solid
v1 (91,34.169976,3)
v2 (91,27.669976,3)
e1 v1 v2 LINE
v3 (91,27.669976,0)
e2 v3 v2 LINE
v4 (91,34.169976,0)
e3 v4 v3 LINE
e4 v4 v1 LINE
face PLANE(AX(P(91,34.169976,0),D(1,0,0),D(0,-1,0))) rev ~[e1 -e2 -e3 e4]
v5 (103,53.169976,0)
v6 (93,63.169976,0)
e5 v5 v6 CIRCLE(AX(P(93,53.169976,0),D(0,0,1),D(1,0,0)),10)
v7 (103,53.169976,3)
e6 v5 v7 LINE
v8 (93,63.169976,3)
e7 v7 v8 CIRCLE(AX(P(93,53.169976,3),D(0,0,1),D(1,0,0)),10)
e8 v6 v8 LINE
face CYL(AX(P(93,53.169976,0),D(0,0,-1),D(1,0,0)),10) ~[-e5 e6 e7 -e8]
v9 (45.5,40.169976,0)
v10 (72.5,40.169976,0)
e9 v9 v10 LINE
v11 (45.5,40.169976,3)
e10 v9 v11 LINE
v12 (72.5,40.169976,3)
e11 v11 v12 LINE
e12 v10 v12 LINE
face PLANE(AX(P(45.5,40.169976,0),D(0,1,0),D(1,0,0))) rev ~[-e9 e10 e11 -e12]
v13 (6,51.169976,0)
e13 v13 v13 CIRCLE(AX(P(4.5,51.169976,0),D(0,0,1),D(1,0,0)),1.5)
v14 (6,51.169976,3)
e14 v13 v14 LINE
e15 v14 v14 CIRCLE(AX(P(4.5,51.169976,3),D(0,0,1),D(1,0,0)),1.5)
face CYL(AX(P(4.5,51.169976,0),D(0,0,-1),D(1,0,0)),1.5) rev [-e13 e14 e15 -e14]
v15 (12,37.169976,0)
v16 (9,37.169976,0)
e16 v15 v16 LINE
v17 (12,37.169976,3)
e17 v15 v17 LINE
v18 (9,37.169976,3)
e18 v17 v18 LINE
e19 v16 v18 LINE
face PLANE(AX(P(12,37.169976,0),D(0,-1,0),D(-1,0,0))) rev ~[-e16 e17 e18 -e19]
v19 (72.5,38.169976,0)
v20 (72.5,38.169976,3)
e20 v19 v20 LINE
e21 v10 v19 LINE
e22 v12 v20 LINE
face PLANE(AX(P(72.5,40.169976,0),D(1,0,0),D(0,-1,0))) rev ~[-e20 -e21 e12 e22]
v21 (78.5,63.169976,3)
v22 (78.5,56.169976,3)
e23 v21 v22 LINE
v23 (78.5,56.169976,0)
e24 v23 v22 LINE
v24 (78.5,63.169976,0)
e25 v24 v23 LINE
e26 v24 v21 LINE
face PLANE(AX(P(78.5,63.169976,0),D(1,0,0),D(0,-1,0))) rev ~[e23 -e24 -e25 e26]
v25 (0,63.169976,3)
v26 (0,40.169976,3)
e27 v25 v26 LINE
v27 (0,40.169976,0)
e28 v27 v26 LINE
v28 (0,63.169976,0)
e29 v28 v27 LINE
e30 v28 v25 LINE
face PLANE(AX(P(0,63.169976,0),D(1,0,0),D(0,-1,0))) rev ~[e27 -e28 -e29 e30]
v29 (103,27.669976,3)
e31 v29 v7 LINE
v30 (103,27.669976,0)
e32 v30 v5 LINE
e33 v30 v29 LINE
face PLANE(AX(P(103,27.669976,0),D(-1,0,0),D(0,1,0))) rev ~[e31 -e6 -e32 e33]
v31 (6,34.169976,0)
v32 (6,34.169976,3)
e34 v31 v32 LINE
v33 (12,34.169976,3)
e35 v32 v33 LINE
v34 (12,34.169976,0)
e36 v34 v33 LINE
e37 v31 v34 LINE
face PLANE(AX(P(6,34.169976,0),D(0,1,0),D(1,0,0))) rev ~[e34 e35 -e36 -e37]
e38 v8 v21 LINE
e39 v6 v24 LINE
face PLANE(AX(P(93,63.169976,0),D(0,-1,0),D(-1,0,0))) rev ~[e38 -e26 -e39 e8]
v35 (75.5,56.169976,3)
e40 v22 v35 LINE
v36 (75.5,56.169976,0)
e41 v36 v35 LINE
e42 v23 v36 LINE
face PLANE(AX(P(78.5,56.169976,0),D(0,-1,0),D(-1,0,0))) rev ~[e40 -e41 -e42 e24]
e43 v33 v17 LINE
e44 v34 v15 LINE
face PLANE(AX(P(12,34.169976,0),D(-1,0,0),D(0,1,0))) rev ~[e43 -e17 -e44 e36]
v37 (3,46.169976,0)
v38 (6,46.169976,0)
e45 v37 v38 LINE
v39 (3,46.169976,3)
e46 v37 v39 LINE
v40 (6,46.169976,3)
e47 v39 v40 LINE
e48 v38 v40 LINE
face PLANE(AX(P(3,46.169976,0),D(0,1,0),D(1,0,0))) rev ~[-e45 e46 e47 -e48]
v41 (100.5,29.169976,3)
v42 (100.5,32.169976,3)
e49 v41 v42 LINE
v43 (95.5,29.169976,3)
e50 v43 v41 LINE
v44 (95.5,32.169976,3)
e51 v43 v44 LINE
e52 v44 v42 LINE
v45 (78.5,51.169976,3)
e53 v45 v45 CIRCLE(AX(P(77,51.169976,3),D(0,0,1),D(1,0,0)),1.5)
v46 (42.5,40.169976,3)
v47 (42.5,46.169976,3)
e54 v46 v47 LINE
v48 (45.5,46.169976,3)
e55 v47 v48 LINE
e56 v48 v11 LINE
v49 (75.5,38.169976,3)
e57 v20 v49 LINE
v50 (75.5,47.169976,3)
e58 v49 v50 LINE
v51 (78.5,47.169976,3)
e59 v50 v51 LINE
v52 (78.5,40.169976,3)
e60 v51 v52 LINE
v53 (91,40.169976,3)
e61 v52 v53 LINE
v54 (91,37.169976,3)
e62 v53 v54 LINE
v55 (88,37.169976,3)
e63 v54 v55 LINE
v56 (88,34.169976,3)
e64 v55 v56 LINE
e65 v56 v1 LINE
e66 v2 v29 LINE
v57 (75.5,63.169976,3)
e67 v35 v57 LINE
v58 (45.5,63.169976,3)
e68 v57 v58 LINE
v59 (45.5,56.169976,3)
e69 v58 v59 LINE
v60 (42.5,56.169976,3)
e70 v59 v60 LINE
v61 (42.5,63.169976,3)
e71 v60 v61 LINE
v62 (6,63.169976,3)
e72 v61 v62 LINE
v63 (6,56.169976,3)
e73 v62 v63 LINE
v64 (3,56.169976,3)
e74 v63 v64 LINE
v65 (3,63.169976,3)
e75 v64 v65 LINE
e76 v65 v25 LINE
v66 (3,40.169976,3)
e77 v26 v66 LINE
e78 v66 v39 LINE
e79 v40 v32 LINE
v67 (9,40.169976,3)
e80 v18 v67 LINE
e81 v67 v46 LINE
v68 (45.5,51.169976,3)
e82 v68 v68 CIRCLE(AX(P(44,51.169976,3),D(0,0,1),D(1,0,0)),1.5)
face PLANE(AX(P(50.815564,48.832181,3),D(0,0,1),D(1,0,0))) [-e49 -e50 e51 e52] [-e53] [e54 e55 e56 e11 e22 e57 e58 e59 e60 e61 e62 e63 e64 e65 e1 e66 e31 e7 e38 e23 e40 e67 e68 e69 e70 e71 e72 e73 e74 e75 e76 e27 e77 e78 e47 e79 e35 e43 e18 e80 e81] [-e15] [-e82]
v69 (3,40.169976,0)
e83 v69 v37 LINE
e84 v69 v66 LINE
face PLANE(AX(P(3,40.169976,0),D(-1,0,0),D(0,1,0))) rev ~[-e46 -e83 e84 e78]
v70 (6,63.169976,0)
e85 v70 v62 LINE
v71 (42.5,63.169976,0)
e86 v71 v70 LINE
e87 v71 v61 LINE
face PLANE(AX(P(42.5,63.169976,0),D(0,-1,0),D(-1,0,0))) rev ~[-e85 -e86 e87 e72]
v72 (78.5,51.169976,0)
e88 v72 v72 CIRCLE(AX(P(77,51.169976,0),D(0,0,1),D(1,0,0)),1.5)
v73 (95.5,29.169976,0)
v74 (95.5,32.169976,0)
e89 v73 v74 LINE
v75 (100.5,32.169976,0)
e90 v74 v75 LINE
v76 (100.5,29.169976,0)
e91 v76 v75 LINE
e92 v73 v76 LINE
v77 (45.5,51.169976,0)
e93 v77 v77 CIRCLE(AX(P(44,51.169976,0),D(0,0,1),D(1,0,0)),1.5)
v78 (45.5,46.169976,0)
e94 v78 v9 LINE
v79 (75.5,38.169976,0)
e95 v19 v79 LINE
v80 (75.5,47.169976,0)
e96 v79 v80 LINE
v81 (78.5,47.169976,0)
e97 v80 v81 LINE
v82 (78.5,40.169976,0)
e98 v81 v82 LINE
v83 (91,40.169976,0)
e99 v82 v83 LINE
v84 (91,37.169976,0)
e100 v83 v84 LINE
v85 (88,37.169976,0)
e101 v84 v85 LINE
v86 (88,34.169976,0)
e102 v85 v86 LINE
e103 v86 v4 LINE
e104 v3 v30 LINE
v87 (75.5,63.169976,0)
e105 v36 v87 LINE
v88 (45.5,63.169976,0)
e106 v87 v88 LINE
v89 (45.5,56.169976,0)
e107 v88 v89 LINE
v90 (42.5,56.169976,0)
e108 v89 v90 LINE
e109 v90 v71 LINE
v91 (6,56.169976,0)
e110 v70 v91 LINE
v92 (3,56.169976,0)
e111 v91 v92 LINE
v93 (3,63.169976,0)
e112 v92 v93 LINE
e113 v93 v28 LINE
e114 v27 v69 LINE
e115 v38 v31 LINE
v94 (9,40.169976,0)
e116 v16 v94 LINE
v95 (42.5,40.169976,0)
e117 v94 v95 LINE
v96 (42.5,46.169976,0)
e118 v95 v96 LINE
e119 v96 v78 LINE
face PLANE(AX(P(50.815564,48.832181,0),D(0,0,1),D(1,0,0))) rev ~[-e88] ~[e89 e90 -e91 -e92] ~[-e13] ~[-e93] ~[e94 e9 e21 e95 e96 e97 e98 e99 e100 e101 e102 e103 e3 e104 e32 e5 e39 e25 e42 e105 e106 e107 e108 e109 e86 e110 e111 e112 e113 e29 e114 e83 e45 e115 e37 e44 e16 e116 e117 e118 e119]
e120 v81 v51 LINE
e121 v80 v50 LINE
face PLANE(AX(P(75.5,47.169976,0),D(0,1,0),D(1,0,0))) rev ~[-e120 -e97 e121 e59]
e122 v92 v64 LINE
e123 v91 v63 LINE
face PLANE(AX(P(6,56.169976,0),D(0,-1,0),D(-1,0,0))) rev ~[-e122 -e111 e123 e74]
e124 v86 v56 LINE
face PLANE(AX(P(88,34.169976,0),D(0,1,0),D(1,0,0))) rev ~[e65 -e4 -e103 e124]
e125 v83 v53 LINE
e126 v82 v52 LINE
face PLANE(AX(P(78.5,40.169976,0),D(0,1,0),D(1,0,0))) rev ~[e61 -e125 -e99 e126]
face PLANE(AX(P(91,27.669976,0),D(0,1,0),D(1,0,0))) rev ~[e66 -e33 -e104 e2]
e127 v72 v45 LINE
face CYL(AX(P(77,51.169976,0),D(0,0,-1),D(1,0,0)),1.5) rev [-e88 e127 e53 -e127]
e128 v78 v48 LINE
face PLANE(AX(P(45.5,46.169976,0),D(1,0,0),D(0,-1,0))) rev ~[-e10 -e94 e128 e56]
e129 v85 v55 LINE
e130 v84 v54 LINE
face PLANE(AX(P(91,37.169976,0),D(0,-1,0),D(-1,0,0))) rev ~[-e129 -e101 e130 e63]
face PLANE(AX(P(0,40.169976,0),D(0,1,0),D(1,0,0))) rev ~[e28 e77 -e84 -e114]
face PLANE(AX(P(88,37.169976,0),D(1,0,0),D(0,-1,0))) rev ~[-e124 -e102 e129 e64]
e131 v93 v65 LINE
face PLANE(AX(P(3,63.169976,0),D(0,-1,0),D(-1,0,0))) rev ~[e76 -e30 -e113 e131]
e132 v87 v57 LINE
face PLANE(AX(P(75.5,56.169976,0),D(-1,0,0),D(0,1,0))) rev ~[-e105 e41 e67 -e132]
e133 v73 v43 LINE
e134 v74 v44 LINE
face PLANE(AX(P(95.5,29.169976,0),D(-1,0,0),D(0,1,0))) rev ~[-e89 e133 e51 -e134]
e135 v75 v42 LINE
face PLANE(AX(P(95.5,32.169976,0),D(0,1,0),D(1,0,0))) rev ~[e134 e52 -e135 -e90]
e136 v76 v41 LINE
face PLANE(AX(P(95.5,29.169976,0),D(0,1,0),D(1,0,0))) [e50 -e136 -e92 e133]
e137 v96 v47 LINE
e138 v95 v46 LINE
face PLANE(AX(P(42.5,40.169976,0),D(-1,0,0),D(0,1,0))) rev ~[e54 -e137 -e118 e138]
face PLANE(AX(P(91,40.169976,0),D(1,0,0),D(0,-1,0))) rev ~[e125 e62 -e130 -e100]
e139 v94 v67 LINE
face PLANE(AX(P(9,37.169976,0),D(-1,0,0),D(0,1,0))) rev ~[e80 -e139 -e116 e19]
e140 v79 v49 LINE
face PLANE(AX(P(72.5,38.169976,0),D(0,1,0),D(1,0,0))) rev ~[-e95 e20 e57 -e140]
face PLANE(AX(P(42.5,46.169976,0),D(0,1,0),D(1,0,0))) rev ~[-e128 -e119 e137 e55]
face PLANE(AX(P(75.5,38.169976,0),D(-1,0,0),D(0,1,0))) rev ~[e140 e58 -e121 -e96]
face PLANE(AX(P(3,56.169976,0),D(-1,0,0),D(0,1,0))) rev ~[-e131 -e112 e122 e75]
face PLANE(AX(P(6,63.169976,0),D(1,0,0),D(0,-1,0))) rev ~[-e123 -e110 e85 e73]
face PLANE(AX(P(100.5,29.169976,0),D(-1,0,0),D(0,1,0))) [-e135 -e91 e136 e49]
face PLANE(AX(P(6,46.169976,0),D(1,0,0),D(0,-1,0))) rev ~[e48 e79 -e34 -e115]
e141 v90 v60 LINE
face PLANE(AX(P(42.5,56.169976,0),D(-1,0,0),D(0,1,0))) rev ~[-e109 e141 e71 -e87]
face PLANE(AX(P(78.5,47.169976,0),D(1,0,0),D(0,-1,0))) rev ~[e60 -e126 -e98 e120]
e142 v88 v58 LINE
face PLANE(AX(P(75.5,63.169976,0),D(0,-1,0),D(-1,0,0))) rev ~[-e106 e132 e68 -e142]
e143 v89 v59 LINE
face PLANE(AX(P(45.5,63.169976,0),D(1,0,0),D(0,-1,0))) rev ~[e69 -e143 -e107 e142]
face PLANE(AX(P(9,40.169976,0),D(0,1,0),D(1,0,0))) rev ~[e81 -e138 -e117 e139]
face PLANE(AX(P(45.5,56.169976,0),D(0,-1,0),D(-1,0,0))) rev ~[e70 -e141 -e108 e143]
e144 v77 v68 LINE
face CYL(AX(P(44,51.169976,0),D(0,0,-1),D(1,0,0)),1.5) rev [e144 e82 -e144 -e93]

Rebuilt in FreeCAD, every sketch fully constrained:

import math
import FreeCAD as App
import Part
import Sketcher


def add_polygon(sketch, points):
    """Adds a closed chain of lines whose ends are joined by coincident constraints."""
    first, n = sketch.GeometryCount, len(points)
    for a, b in zip(points, points[1:] + points[:1]):
        sketch.addGeometry(Part.LineSegment(App.Vector(*a, 0), App.Vector(*b, 0)), False)
    for i in range(n):
        sketch.addConstraint(Sketcher.Constraint("Coincident", first + i, 2, first + (i + 1) % n, 1))

doc = App.newDocument("Part")
body = doc.addObject("PartDesign::Body", "Body")

sketch1 = body.newObject("Sketcher::SketchObject", "Sketch")
sketch1.AttachmentSupport = (doc.getObject("XY_Plane"), [""])
sketch1.MapMode = "FlatFace"
sketch1.addGeometry(Part.LineSegment(App.Vector(0, 63.169976, 0), App.Vector(0, 40.169976, 0)), False)
sketch1.addGeometry(Part.LineSegment(App.Vector(0, 40.169976, 0), App.Vector(3, 40.169976, 0)), False)
sketch1.addGeometry(Part.LineSegment(App.Vector(3, 40.169976, 0), App.Vector(3, 46.169976, 0)), False)
sketch1.addGeometry(Part.LineSegment(App.Vector(3, 46.169976, 0), App.Vector(6, 46.169976, 0)), False)
sketch1.addGeometry(Part.LineSegment(App.Vector(6, 46.169976, 0), App.Vector(6, 34.169976, 0)), False)
sketch1.addGeometry(Part.LineSegment(App.Vector(6, 34.169976, 0), App.Vector(12, 34.169976, 0)), False)
sketch1.addGeometry(Part.LineSegment(App.Vector(12, 34.169976, 0), App.Vector(12, 37.169976, 0)), False)
sketch1.addGeometry(Part.LineSegment(App.Vector(12, 37.169976, 0), App.Vector(9, 37.169976, 0)), False)
sketch1.addGeometry(Part.LineSegment(App.Vector(9, 37.169976, 0), App.Vector(9, 40.169976, 0)), False)
sketch1.addGeometry(Part.LineSegment(App.Vector(9, 40.169976, 0), App.Vector(42.5, 40.169976, 0)), False)
sketch1.addGeometry(Part.LineSegment(App.Vector(42.5, 40.169976, 0), App.Vector(42.5, 46.169976, 0)), False)
sketch1.addGeometry(Part.LineSegment(App.Vector(42.5, 46.169976, 0), App.Vector(45.5, 46.169976, 0)), False)
sketch1.addGeometry(Part.LineSegment(App.Vector(45.5, 46.169976, 0), App.Vector(45.5, 40.169976, 0)), False)
sketch1.addGeometry(Part.LineSegment(App.Vector(45.5, 40.169976, 0), App.Vector(72.5, 40.169976, 0)), False)
sketch1.addGeometry(Part.LineSegment(App.Vector(72.5, 40.169976, 0), App.Vector(72.5, 38.169976, 0)), False)
sketch1.addGeometry(Part.LineSegment(App.Vector(72.5, 38.169976, 0), App.Vector(75.5, 38.169976, 0)), False)
sketch1.addGeometry(Part.LineSegment(App.Vector(75.5, 38.169976, 0), App.Vector(75.5, 47.169976, 0)), False)
sketch1.addGeometry(Part.LineSegment(App.Vector(75.5, 47.169976, 0), App.Vector(78.5, 47.169976, 0)), False)
sketch1.addGeometry(Part.LineSegment(App.Vector(78.5, 47.169976, 0), App.Vector(78.5, 40.169976, 0)), False)
sketch1.addGeometry(Part.LineSegment(App.Vector(78.5, 40.169976, 0), App.Vector(91, 40.169976, 0)), False)
sketch1.addGeometry(Part.LineSegment(App.Vector(91, 40.169976, 0), App.Vector(91, 37.169976, 0)), False)
sketch1.addGeometry(Part.LineSegment(App.Vector(91, 37.169976, 0), App.Vector(88, 37.169976, 0)), False)
sketch1.addGeometry(Part.LineSegment(App.Vector(88, 37.169976, 0), App.Vector(88, 34.169976, 0)), False)
sketch1.addGeometry(Part.LineSegment(App.Vector(88, 34.169976, 0), App.Vector(91, 34.169976, 0)), False)
sketch1.addGeometry(Part.LineSegment(App.Vector(91, 34.169976, 0), App.Vector(91, 27.669976, 0)), False)
sketch1.addGeometry(Part.LineSegment(App.Vector(91, 27.669976, 0), App.Vector(103, 27.669976, 0)), False)
sketch1.addGeometry(Part.LineSegment(App.Vector(103, 27.669976, 0), App.Vector(103, 53.169976, 0)), False)
sketch1.addGeometry(Part.ArcOfCircle(Part.Circle(App.Vector(93, 53.169976, 0), App.Vector(0, 0, 1), 10), math.radians(0), math.radians(90)), False)
sketch1.addGeometry(Part.LineSegment(App.Vector(93, 63.169976, 0), App.Vector(78.5, 63.169976, 0)), False)
sketch1.addGeometry(Part.LineSegment(App.Vector(78.5, 63.169976, 0), App.Vector(78.5, 56.169976, 0)), False)
sketch1.addGeometry(Part.LineSegment(App.Vector(78.5, 56.169976, 0), App.Vector(75.5, 56.169976, 0)), False)
sketch1.addGeometry(Part.LineSegment(App.Vector(75.5, 56.169976, 0), App.Vector(75.5, 63.169976, 0)), False)
sketch1.addGeometry(Part.LineSegment(App.Vector(75.5, 63.169976, 0), App.Vector(45.5, 63.169976, 0)), False)
sketch1.addGeometry(Part.LineSegment(App.Vector(45.5, 63.169976, 0), App.Vector(45.5, 56.169976, 0)), False)
sketch1.addGeometry(Part.LineSegment(App.Vector(45.5, 56.169976, 0), App.Vector(42.5, 56.169976, 0)), False)
sketch1.addGeometry(Part.LineSegment(App.Vector(42.5, 56.169976, 0), App.Vector(42.5, 63.169976, 0)), False)
sketch1.addGeometry(Part.LineSegment(App.Vector(42.5, 63.169976, 0), App.Vector(6, 63.169976, 0)), False)
sketch1.addGeometry(Part.LineSegment(App.Vector(6, 63.169976, 0), App.Vector(6, 56.169976, 0)), False)
sketch1.addGeometry(Part.LineSegment(App.Vector(6, 56.169976, 0), App.Vector(3, 56.169976, 0)), False)
sketch1.addGeometry(Part.LineSegment(App.Vector(3, 56.169976, 0), App.Vector(3, 63.169976, 0)), False)
sketch1.addGeometry(Part.LineSegment(App.Vector(3, 63.169976, 0), App.Vector(0, 63.169976, 0)), False)
add_polygon(sketch1, [(100.5, 29.169976), (95.5, 29.169976), (95.5, 32.169976), (100.5, 32.169976)])
sketch1.addGeometry(Part.Circle(App.Vector(4.5, 51.169976, 0), App.Vector(0, 0, 1), 1.5), False)
sketch1.addGeometry(Part.Circle(App.Vector(44, 51.169976, 0), App.Vector(0, 0, 1), 1.5), False)
sketch1.addGeometry(Part.Circle(App.Vector(77, 51.169976, 0), App.Vector(0, 0, 1), 1.5), False)
sketch1.addConstraint([
    Sketcher.Constraint("Coincident", 0, 2, 1, 1),
    Sketcher.Constraint("Coincident", 1, 2, 2, 1),
    Sketcher.Constraint("Coincident", 2, 2, 3, 1),
    Sketcher.Constraint("Coincident", 3, 2, 4, 1),
    Sketcher.Constraint("Coincident", 4, 2, 5, 1),
    Sketcher.Constraint("Coincident", 5, 2, 6, 1),
    Sketcher.Constraint("Coincident", 6, 2, 7, 1),
    Sketcher.Constraint("Coincident", 7, 2, 8, 1),
    Sketcher.Constraint("Coincident", 8, 2, 9, 1),
    Sketcher.Constraint("Coincident", 9, 2, 10, 1),
    Sketcher.Constraint("Coincident", 10, 2, 11, 1),
    Sketcher.Constraint("Coincident", 11, 2, 12, 1),
    Sketcher.Constraint("Coincident", 12, 2, 13, 1),
    Sketcher.Constraint("Coincident", 13, 2, 14, 1),
    Sketcher.Constraint("Coincident", 14, 2, 15, 1),
    Sketcher.Constraint("Coincident", 15, 2, 16, 1),
    Sketcher.Constraint("Coincident", 16, 2, 17, 1),
    Sketcher.Constraint("Coincident", 17, 2, 18, 1),
    Sketcher.Constraint("Coincident", 18, 2, 19, 1),
    Sketcher.Constraint("Coincident", 19, 2, 20, 1),
    Sketcher.Constraint("Coincident", 20, 2, 21, 1),
    Sketcher.Constraint("Coincident", 21, 2, 22, 1),
    Sketcher.Constraint("Coincident", 22, 2, 23, 1),
    Sketcher.Constraint("Coincident", 23, 2, 24, 1),
    Sketcher.Constraint("Coincident", 24, 2, 25, 1),
    Sketcher.Constraint("Coincident", 25, 2, 26, 1),
    Sketcher.Constraint("Tangent", 26, 2, 27, 1),
    Sketcher.Constraint("Tangent", 27, 2, 28, 1),
    Sketcher.Constraint("Coincident", 28, 2, 29, 1),
    Sketcher.Constraint("Coincident", 29, 2, 30, 1),
    Sketcher.Constraint("Coincident", 30, 2, 31, 1),
    Sketcher.Constraint("Coincident", 31, 2, 32, 1),
    Sketcher.Constraint("Coincident", 32, 2, 33, 1),
    Sketcher.Constraint("Coincident", 33, 2, 34, 1),
    Sketcher.Constraint("Coincident", 34, 2, 35, 1),
    Sketcher.Constraint("Coincident", 35, 2, 36, 1),
    Sketcher.Constraint("Coincident", 36, 2, 37, 1),
    Sketcher.Constraint("Coincident", 37, 2, 38, 1),
    Sketcher.Constraint("Coincident", 38, 2, 39, 1),
    Sketcher.Constraint("Coincident", 39, 2, 40, 1),
    Sketcher.Constraint("Coincident", 40, 2, 0, 1),
    Sketcher.Constraint("Vertical", 0),
    Sketcher.Constraint("Horizontal", 1),
    Sketcher.Constraint("Vertical", 2),
    Sketcher.Constraint("Horizontal", 3),
    Sketcher.Constraint("Vertical", 4),
    Sketcher.Constraint("Horizontal", 5),
    Sketcher.Constraint("Vertical", 6),
    Sketcher.Constraint("Horizontal", 7),
    Sketcher.Constraint("Vertical", 8),
    Sketcher.Constraint("Horizontal", 9),
    Sketcher.Constraint("Vertical", 10),
    Sketcher.Constraint("Horizontal", 11),
    Sketcher.Constraint("Vertical", 12),
    Sketcher.Constraint("Horizontal", 13),
    Sketcher.Constraint("Vertical", 14),
    Sketcher.Constraint("Horizontal", 15),
    Sketcher.Constraint("Vertical", 16),
    Sketcher.Constraint("Horizontal", 17),
    Sketcher.Constraint("Vertical", 18),
    Sketcher.Constraint("Horizontal", 19),
    Sketcher.Constraint("Vertical", 20),
    Sketcher.Constraint("Horizontal", 21),
    Sketcher.Constraint("Vertical", 22),
    Sketcher.Constraint("Horizontal", 23),
    Sketcher.Constraint("Vertical", 24),
    Sketcher.Constraint("Horizontal", 25),
    Sketcher.Constraint("Vertical", 26),
    Sketcher.Constraint("Horizontal", 28),
    Sketcher.Constraint("Vertical", 29),
    Sketcher.Constraint("Horizontal", 30),
    Sketcher.Constraint("Vertical", 31),
    Sketcher.Constraint("Horizontal", 32),
    Sketcher.Constraint("Vertical", 33),
    Sketcher.Constraint("Horizontal", 34),
    Sketcher.Constraint("Vertical", 35),
    Sketcher.Constraint("Horizontal", 36),
    Sketcher.Constraint("Vertical", 37),
    Sketcher.Constraint("Horizontal", 38),
    Sketcher.Constraint("Vertical", 39),
    Sketcher.Constraint("Horizontal", 40),
    Sketcher.Constraint("Horizontal", 41),
    Sketcher.Constraint("Vertical", 42),
    Sketcher.Constraint("Horizontal", 43),
    Sketcher.Constraint("Vertical", 44),
    Sketcher.Constraint("Equal", 45, 46),
    Sketcher.Constraint("Equal", 46, 47),
    Sketcher.Constraint("PointOnObject", 0, 2, -2),
    Sketcher.Constraint("Horizontal", 45, 3, 46, 3),
    Sketcher.Constraint("Horizontal", 46, 3, 47, 3),
    Sketcher.Constraint("Horizontal", 1, 2, 8, 2),
    Sketcher.Constraint("Horizontal", 3, 2, 10, 2),
    Sketcher.Constraint("Horizontal", 9, 2, 12, 2),
    Sketcher.Constraint("Horizontal", 13, 2, 18, 2),
    Sketcher.Constraint("Horizontal", 7, 2, 20, 2),
    Sketcher.Constraint("Horizontal", 5, 2, 22, 2),
    Sketcher.Constraint("Horizontal", 28, 2, 31, 2),
    Sketcher.Constraint("Horizontal", 30, 2, 33, 2),
    Sketcher.Constraint("Horizontal", 32, 2, 35, 2),
    Sketcher.Constraint("Horizontal", 34, 2, 37, 2),
    Sketcher.Constraint("Horizontal", 36, 2, 39, 2),
    Sketcher.Constraint("Vertical", 20, 2, 23, 2),
    Sketcher.Constraint("Vertical", 18, 2, 28, 2),
    Sketcher.Constraint("Vertical", 16, 2, 30, 2),
    Sketcher.Constraint("Vertical", 12, 2, 32, 2),
    Sketcher.Constraint("Vertical", 10, 2, 34, 2),
    Sketcher.Constraint("Vertical", 4, 2, 36, 2),
    Sketcher.Constraint("Vertical", 2, 2, 38, 2),
    Sketcher.Constraint("Equal", 1, 3),
    Sketcher.Constraint("Equal", 3, 7),
    Sketcher.Constraint("Equal", 7, 11),
    Sketcher.Constraint("Equal", 11, 15),
    Sketcher.Constraint("Equal", 15, 17),
    Sketcher.Constraint("Equal", 17, 21),
    Sketcher.Constraint("Equal", 5, 2),
    Sketcher.Constraint("Equal", 25, 4),
    Sketcher.Constraint("Equal", 40, 6),
    Sketcher.Constraint("Equal", 6, 8),
    Sketcher.Constraint("Equal", 18, 29),
    Sketcher.Constraint("Equal", 22, 42),
    Sketcher.Constraint("Diameter", 45, 3.0),
    Sketcher.Constraint("Radius", 27, 10.0),
    Sketcher.Constraint("DistanceX", 1, 1, 1, 2, 3.0),
    Sketcher.Constraint("DistanceX", 5, 1, 5, 2, 6.0),
    Sketcher.Constraint("DistanceX", 13, 1, 13, 2, 27.0),
    Sketcher.Constraint("DistanceX", 41, 2, 41, 1, 5.0),
    Sketcher.Constraint("DistanceY", 0, 2, 0, 1, 23.0),
    Sketcher.Constraint("DistanceY", 14, 2, 14, 1, 2.0),
    Sketcher.Constraint("DistanceY", 16, 1, 16, 2, 9.0),
    Sketcher.Constraint("DistanceX", 9, 1, 9, 2, 33.5),
    Sketcher.Constraint("DistanceX", 19, 1, 19, 2, 12.5),
    Sketcher.Constraint("DistanceY", 24, 2, 24, 1, 6.5),
    Sketcher.Constraint("DistanceX", -1, 1, 46, 3, 44.0),
    Sketcher.Constraint("DistanceX", -1, 1, 47, 3, 77.0),
    Sketcher.Constraint("DistanceY", 45, 3, 27, 3, 2.0),
    Sketcher.Constraint("DistanceY", 41, 2, 23, 2, 5.0),
    Sketcher.Constraint("DistanceX", -1, 1, 45, 3, 4.5),
    Sketcher.Constraint("DistanceX", -1, 1, 41, 2, 95.5),
    Sketcher.Constraint("DistanceY", -1, 1, 27, 3, 53.169976),
])
pad1 = body.newObject("PartDesign::Pad", "Pad")
pad1.Profile = sketch1
pad1.Length = 3

doc.recompute()
